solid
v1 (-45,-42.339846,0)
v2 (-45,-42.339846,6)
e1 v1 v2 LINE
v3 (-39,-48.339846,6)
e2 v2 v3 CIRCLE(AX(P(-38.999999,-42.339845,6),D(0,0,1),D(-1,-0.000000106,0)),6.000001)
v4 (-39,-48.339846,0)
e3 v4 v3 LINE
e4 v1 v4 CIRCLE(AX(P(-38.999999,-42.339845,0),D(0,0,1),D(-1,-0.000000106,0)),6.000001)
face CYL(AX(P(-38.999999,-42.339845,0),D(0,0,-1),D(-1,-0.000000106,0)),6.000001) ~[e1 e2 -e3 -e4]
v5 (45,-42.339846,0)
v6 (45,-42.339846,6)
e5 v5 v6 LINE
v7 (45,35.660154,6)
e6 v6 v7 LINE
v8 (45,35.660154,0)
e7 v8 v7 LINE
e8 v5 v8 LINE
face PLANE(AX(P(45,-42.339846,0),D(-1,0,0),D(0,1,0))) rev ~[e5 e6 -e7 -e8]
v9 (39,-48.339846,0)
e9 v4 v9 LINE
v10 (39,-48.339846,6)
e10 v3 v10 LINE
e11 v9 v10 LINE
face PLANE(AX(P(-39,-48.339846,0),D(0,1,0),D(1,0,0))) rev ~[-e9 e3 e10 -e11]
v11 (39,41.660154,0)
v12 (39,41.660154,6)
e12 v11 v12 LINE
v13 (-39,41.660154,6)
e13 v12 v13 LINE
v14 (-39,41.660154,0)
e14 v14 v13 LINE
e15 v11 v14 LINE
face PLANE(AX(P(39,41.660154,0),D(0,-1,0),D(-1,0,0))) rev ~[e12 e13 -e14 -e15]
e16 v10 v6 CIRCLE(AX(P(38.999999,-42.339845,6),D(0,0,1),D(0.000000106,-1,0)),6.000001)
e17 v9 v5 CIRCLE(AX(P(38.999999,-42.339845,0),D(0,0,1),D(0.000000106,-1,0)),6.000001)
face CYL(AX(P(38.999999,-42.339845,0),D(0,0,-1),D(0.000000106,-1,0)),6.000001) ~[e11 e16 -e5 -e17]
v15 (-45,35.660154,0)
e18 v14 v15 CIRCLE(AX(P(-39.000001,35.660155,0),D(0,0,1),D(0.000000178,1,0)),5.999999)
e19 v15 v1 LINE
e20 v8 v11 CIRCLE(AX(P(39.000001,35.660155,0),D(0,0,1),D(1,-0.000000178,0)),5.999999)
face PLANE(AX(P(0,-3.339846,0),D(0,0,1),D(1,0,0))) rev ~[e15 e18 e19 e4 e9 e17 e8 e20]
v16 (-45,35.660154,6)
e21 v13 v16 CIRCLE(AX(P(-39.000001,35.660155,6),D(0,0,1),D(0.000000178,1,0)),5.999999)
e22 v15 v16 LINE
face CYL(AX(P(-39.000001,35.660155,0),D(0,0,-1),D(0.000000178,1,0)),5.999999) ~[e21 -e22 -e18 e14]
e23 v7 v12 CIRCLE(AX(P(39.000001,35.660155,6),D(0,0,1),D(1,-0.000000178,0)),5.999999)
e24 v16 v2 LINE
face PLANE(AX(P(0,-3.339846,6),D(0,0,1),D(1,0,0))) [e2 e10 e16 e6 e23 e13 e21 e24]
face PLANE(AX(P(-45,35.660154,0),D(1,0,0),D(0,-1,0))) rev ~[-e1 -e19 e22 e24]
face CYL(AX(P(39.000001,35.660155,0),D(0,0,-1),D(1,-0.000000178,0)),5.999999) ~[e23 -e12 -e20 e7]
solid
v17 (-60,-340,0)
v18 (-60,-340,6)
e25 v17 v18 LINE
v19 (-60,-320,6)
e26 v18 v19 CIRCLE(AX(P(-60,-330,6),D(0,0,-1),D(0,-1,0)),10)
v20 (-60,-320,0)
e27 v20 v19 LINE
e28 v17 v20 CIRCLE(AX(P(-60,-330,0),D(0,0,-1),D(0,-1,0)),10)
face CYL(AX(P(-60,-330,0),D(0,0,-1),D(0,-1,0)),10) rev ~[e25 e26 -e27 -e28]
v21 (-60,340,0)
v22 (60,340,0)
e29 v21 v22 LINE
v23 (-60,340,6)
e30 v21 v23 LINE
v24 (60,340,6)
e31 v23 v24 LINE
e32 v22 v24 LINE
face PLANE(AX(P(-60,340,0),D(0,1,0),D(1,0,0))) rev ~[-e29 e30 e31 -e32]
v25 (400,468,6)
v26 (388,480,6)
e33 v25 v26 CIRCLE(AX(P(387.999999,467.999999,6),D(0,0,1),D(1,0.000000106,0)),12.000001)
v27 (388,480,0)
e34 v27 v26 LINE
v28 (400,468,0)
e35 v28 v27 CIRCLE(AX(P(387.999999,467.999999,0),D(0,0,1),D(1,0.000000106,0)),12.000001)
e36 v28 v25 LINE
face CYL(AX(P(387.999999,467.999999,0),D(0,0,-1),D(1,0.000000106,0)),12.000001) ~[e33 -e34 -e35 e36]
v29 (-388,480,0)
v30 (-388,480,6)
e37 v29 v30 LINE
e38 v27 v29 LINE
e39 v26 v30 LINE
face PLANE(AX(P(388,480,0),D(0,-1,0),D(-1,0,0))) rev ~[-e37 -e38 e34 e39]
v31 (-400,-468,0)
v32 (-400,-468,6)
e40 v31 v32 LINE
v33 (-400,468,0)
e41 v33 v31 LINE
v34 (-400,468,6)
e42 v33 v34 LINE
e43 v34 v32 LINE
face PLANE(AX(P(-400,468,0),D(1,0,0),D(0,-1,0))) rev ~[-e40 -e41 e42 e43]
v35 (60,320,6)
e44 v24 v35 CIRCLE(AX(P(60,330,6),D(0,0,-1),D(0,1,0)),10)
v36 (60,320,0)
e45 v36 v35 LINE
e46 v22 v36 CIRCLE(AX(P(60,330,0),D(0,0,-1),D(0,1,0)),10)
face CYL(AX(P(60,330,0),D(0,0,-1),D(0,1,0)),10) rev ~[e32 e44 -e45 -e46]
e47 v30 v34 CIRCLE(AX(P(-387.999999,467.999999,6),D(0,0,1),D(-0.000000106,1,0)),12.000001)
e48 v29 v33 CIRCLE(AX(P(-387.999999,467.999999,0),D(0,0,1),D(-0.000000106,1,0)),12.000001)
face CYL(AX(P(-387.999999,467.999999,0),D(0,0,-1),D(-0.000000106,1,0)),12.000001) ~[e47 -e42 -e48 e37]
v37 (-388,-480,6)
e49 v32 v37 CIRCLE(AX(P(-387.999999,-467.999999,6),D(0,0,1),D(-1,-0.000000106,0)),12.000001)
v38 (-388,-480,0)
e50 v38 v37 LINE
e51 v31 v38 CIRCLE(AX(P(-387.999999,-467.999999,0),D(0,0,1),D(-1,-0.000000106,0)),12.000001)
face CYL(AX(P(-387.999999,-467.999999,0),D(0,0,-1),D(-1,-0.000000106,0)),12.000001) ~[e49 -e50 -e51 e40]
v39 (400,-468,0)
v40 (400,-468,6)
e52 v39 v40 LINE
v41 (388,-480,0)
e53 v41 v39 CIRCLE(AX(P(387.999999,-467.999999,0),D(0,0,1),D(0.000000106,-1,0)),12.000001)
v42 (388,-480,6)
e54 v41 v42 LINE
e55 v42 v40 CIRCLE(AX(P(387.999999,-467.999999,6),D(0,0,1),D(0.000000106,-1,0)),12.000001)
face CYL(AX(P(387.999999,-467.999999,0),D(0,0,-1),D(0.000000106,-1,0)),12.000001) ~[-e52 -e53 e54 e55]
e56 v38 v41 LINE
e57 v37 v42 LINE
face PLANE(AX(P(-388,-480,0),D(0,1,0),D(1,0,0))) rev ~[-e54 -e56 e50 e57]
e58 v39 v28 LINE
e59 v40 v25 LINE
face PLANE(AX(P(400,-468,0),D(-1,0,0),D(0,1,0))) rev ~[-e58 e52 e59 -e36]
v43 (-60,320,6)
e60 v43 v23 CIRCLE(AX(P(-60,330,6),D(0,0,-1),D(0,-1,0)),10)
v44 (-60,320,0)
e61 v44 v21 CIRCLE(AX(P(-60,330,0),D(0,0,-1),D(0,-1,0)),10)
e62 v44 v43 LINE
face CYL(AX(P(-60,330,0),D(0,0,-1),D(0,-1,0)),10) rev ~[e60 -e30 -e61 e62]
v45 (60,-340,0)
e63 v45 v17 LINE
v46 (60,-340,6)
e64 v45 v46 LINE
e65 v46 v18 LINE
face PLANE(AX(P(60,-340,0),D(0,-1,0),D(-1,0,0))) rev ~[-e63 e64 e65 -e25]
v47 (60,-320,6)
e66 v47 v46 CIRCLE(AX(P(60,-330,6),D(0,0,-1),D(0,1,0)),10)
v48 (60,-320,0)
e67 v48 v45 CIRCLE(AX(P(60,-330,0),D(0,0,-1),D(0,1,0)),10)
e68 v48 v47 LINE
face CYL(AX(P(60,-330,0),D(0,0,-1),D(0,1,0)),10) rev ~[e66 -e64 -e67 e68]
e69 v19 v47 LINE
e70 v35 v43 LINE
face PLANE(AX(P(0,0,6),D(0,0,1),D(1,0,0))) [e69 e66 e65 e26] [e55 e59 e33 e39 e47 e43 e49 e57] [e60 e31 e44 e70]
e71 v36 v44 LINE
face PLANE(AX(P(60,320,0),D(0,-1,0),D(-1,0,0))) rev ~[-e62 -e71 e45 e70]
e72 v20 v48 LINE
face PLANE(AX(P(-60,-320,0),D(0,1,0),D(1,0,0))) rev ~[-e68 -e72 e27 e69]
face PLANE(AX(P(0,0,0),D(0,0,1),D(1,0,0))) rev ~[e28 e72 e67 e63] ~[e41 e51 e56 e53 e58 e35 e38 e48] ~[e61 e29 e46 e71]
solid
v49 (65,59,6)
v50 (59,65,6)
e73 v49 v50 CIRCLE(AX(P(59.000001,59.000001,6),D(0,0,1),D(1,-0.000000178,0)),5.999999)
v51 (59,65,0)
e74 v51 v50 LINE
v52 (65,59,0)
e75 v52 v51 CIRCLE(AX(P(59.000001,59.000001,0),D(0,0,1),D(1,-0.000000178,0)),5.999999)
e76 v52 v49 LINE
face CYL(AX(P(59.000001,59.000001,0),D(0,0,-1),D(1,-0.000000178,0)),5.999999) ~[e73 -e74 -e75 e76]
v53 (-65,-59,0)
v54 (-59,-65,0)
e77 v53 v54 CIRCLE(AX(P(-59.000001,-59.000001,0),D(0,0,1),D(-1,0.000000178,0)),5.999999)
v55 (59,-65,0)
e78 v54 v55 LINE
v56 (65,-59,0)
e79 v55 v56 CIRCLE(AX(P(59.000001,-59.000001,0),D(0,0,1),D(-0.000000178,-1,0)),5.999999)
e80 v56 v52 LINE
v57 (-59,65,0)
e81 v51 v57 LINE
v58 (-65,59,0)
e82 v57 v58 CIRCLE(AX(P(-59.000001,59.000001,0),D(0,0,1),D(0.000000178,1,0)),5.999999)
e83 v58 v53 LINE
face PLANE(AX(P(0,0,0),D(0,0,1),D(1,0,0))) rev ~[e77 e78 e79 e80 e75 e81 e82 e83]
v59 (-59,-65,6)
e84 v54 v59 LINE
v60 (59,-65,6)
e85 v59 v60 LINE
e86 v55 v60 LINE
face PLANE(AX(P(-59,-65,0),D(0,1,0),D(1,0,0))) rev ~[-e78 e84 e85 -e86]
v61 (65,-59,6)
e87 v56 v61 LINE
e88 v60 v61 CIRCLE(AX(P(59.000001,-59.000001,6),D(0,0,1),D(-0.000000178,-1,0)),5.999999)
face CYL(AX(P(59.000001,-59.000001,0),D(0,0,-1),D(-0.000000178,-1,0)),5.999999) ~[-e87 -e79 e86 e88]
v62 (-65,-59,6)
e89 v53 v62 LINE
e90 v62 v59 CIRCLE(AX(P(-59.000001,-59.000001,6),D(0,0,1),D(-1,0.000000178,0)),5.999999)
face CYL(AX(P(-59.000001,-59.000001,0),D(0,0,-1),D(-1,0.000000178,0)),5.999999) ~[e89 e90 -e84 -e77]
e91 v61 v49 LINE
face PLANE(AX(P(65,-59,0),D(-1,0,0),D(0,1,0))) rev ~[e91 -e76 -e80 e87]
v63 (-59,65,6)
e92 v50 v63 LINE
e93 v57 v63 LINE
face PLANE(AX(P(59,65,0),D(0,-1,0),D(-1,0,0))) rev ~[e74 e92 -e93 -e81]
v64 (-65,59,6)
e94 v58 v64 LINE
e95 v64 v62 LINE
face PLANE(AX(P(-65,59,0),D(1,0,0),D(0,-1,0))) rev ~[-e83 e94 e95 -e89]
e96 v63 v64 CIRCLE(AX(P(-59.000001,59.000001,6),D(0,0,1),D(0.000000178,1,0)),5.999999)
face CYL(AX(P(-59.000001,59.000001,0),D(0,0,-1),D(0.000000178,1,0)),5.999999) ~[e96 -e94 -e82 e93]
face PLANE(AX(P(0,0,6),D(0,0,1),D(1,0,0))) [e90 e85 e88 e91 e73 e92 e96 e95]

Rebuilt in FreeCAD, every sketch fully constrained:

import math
import FreeCAD as App
import Part
import Sketcher
from FreeCAD import Vector

doc = App.newDocument("Part")
body = doc.addObject("PartDesign::Body", "Body")

# Sketch on XY plane
sketch1 = body.newObject("Sketcher::SketchObject", "Sketch")
sketch1.AttachmentSupport = (doc.getObject("XY_Plane"), [""])
sketch1.MapMode = "FlatFace"
sketch1.addGeometry([
    Part.LineSegment(Vector(39, 42, 0), Vector(-39, 42, 0)),  # 0
    Part.ArcOfCircle(Part.Circle(Vector(-39, 36, 0), Vector(0, 0, 1), 6), math.radians(90), math.radians(180)),  # 1
    Part.LineSegment(Vector(-45, 36, 0), Vector(-45, -42, 0)),  # 2
    Part.ArcOfCircle(Part.Circle(Vector(-39, -42, 0), Vector(0, 0, 1), 6), math.radians(-180), math.radians(-90)),  # 3
    Part.LineSegment(Vector(-39, -48, 0), Vector(39, -48, 0)),  # 4
    Part.ArcOfCircle(Part.Circle(Vector(39, -42, 0), Vector(0, 0, 1), 6), math.radians(-90), math.radians(0)),  # 5
    Part.LineSegment(Vector(45, -42, 0), Vector(45, 36, 0)),  # 6
    Part.ArcOfCircle(Part.Circle(Vector(39, 36, 0), Vector(0, 0, 1), 6), math.radians(0), math.radians(90)),  # 7
], False)
sketch1.addConstraint([
    Sketcher.Constraint("Tangent", 0, 2, 1, 1),
    Sketcher.Constraint("Tangent", 1, 2, 2, 1),
    Sketcher.Constraint("Tangent", 2, 2, 3, 1),
    Sketcher.Constraint("Tangent", 3, 2, 4, 1),
    Sketcher.Constraint("Tangent", 4, 2, 5, 1),
    Sketcher.Constraint("Tangent", 5, 2, 6, 1),
    Sketcher.Constraint("Tangent", 6, 2, 7, 1),
    Sketcher.Constraint("Tangent", 7, 2, 0, 1),
    Sketcher.Constraint("Horizontal", 0),
    Sketcher.Constraint("Vertical", 2),
    Sketcher.Constraint("Horizontal", 4),
    Sketcher.Constraint("Vertical", 6),
    Sketcher.Constraint("Equal", 1, 3),
    Sketcher.Constraint("Equal", 3, 5),
    Sketcher.Constraint("Equal", 5, 7),
    Sketcher.Constraint("Equal", 4, 2),
    Sketcher.Constraint("Radius", 1, 5.999999),
    Sketcher.Constraint("DistanceX", 0, 2, 0, 1, 78.0),
    Sketcher.Constraint("DistanceX", 1, 3, -1, 1, 39.000001),
    Sketcher.Constraint("DistanceY", -1, 1, 1, 3, 35.660155),
])
pad1 = body.newObject("PartDesign::Pad", "Pad")
pad1.Profile = sketch1
pad1.Length = 6
body2 = doc.addObject("PartDesign::Body", "Body001")

# Sketch on XY plane
sketch2 = body2.newObject("Sketcher::SketchObject", "Sketch001")
sketch2.AttachmentSupport = (doc.getObject("XY_Plane001"), [""])
sketch2.MapMode = "FlatFace"
sketch2.addGeometry([
    Part.ArcOfCircle(Part.Circle(Vector(59, 59, 0), Vector(0, 0, 1), 6), math.radians(0), math.radians(90)),  # 0
    Part.LineSegment(Vector(59, 65, 0), Vector(-59, 65, 0)),  # 1
    Part.ArcOfCircle(Part.Circle(Vector(-59, 59, 0), Vector(0, 0, 1), 6), math.radians(90), math.radians(180)),  # 2
    Part.LineSegment(Vector(-65, 59, 0), Vector(-65, -59, 0)),  # 3
    Part.ArcOfCircle(Part.Circle(Vector(-59, -59, 0), Vector(0, 0, 1), 6), math.radians(180), math.radians(270)),  # 4
    Part.LineSegment(Vector(-59, -65, 0), Vector(59, -65, 0)),  # 5
    Part.ArcOfCircle(Part.Circle(Vector(59, -59, 0), Vector(0, 0, 1), 6), math.radians(-90), math.radians(0)),  # 6
    Part.LineSegment(Vector(65, -59, 0), Vector(65, 59, 0)),  # 7
], False)
sketch2.addConstraint([
    Sketcher.Constraint("Tangent", 0, 2, 1, 1),
    Sketcher.Constraint("Tangent", 1, 2, 2, 1),
    Sketcher.Constraint("Tangent", 2, 2, 3, 1),
    Sketcher.Constraint("Tangent", 3, 2, 4, 1),
    Sketcher.Constraint("Tangent", 4, 2, 5, 1),
    Sketcher.Constraint("Tangent", 5, 2, 6, 1),
    Sketcher.Constraint("Tangent", 6, 2, 7, 1),
    Sketcher.Constraint("Tangent", 7, 2, 0, 1),
    Sketcher.Constraint("Horizontal", 1),
    Sketcher.Constraint("Vertical", 3),
    Sketcher.Constraint("Horizontal", 5),
    Sketcher.Constraint("Vertical", 7),
    Sketcher.Constraint("Equal", 0, 2),
    Sketcher.Constraint("Equal", 2, 4),
    Sketcher.Constraint("Equal", 4, 6),
    Sketcher.Constraint("Symmetric", 0, 3, 4, 3, -1, 1),
    Sketcher.Constraint("Equal", 5, 3),
    Sketcher.Constraint("Radius", 0, 5.999999),
    Sketcher.Constraint("DistanceX", 1, 2, 1, 1, 118.0),
])
pad2 = body2.newObject("PartDesign::Pad", "Pad001")
pad2.Profile = sketch2
pad2.Length = 6
body3 = doc.addObject("PartDesign::Body", "Body002")

# Sketch on XY plane
sketch3 = body3.newObject("Sketcher::SketchObject", "Sketch002")
sketch3.AttachmentSupport = (doc.getObject("XY_Plane002"), [""])
sketch3.MapMode = "FlatFace"
sketch3.addGeometry([
    Part.LineSegment(Vector(388, 480, 0), Vector(-388, 480, 0)),  # 0
    Part.ArcOfCircle(Part.Circle(Vector(-388, 468, 0), Vector(0, 0, 1), 12), math.radians(90), math.radians(180)),  # 1
    Part.LineSegment(Vector(-400, 468, 0), Vector(-400, -468, 0)),  # 2
    Part.ArcOfCircle(Part.Circle(Vector(-388, -468, 0), Vector(0, 0, 1), 12), math.radians(-180), math.radians(-90)),  # 3
    Part.LineSegment(Vector(-388, -480, 0), Vector(388, -480, 0)),  # 4
    Part.ArcOfCircle(Part.Circle(Vector(388, -468, 0), Vector(0, 0, 1), 12), math.radians(-90), math.radians(0)),  # 5
    Part.LineSegment(Vector(400, -468, 0), Vector(400, 468, 0)),  # 6
    Part.ArcOfCircle(Part.Circle(Vector(388, 468, 0), Vector(0, 0, 1), 12), math.radians(0), math.radians(90)),  # 7
    Part.ArcOfCircle(Part.Circle(Vector(60, -330, 0), Vector(0, 0, 1), 10), math.radians(-90), math.radians(90)),  # 8
    Part.LineSegment(Vector(60, -340, 0), Vector(-60, -340, 0)),  # 9
    Part.ArcOfCircle(Part.Circle(Vector(-60, -330, 0), Vector(0, 0, 1), 10), math.radians(90), math.radians(270)),  # 10
    Part.LineSegment(Vector(-60, -320, 0), Vector(60, -320, 0)),  # 11
    Part.LineSegment(Vector(60, 320, 0), Vector(-60, 320, 0)),  # 12
    Part.ArcOfCircle(Part.Circle(Vector(-60, 330, 0), Vector(0, 0, 1), 10), math.radians(90), math.radians(270)),  # 13
    Part.LineSegment(Vector(-60, 340, 0), Vector(60, 340, 0)),  # 14
    Part.ArcOfCircle(Part.Circle(Vector(60, 330, 0), Vector(0, 0, 1), 10), math.radians(-90), math.radians(90)),  # 15
], False)
sketch3.addConstraint([
    Sketcher.Constraint("Tangent", 0, 2, 1, 1),
    Sketcher.Constraint("Tangent", 1, 2, 2, 1),
    Sketcher.Constraint("Tangent", 2, 2, 3, 1),
    Sketcher.Constraint("Tangent", 3, 2, 4, 1),
    Sketcher.Constraint("Tangent", 4, 2, 5, 1),
    Sketcher.Constraint("Tangent", 5, 2, 6, 1),
    Sketcher.Constraint("Tangent", 6, 2, 7, 1),
    Sketcher.Constraint("Tangent", 7, 2, 0, 1),
    Sketcher.Constraint("Tangent", 8, 1, 9, 1),
    Sketcher.Constraint("Tangent", 9, 2, 10, 2),
    Sketcher.Constraint("Tangent", 10, 1, 11, 1),
    Sketcher.Constraint("Tangent", 11, 2, 8, 2),
    Sketcher.Constraint("Tangent", 12, 2, 13, 2),
    Sketcher.Constraint("Tangent", 13, 1, 14, 1),
    Sketcher.Constraint("Tangent", 14, 2, 15, 2),
    Sketcher.Constraint("Tangent", 15, 1, 12, 1),
    Sketcher.Constraint("Horizontal", 0),
    Sketcher.Constraint("Vertical", 2),
    Sketcher.Constraint("Horizontal", 4),
    Sketcher.Constraint("Vertical", 6),
    Sketcher.Constraint("Horizontal", 9),
    Sketcher.Constraint("Horizontal", 11),
    Sketcher.Constraint("Horizontal", 12),
    Sketcher.Constraint("Horizontal", 14),
    Sketcher.Constraint("Equal", 1, 3),
    Sketcher.Constraint("Equal", 3, 5),
    Sketcher.Constraint("Equal", 5, 7),
    Sketcher.Constraint("Equal", 10, 13),
    Sketcher.Constraint("Symmetric", 1, 3, 5, 3, -1, 1),
    Sketcher.Constraint("Symmetric", 8, 3, 13, 3, -1, 1),
    Sketcher.Constraint("Vertical", 10, 3, 13, 3),
    Sketcher.Constraint("Vertical", 8, 3, 15, 3),
    Sketcher.Constraint("Radius", 1, 12.000001),
    Sketcher.Constraint("Radius", 8, 10.0),
    Sketcher.Constraint("DistanceX", 0, 2, 0, 1, 776.0),
    Sketcher.Constraint("DistanceX", 9, 2, 9, 1, 120.0),
    Sketcher.Constraint("DistanceY", 2, 2, 2, 1, 936.0),
    Sketcher.Constraint("DistanceY", 8, 3, -1, 1, 330.0),
])
pad3 = body3.newObject("PartDesign::Pad", "Pad002")
pad3.Profile = sketch3
pad3.Length = 6

doc.recompute()
